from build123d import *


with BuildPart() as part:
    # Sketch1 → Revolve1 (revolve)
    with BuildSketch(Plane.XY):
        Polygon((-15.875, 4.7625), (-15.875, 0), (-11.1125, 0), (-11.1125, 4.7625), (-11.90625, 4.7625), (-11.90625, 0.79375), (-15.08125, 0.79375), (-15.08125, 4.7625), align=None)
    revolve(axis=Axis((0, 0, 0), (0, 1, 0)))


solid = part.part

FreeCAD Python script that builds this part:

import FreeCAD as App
import Part
import Sketcher
Q = App.Units.Quantity

doc = App.newDocument("Part")
body = doc.addObject("PartDesign::Body", "Body")

sketch1 = body.newObject("Sketcher::SketchObject", "Sketch")
sketch1.AttachmentSupport = (doc.getObject("XY_Plane"), [""])
sketch1.MapMode = "FlatFace"
sketch1.addGeometry([
    Part.LineSegment(App.Vector(-15.9, 4.8, 0), App.Vector(-15.9, 0, 0)),
    Part.LineSegment(App.Vector(-15.9, 0, 0), App.Vector(-11.1, 0, 0)),
    Part.LineSegment(App.Vector(-11.1, 0, 0), App.Vector(-11.1, 4.8, 0)),
    Part.LineSegment(App.Vector(-11.1, 4.8, 0), App.Vector(-11.9, 4.8, 0)),
    Part.LineSegment(App.Vector(-11.9, 4.8, 0), App.Vector(-11.9, 0.8, 0)),
    Part.LineSegment(App.Vector(-11.9, 0.8, 0), App.Vector(-15.1, 0.8, 0)),
    Part.LineSegment(App.Vector(-15.1, 0.8, 0), App.Vector(-15.1, 4.8, 0)),
    Part.LineSegment(App.Vector(-15.1, 4.8, 0), App.Vector(-15.9, 4.8, 0)),
], False)
sketch1.addConstraint([
    Sketcher.Constraint("Coincident", 0, 2, 1, 1),
    Sketcher.Constraint("Coincident", 1, 2, 2, 1),
    Sketcher.Constraint("Coincident", 2, 2, 3, 1),
    Sketcher.Constraint("Coincident", 3, 2, 4, 1),
    Sketcher.Constraint("Coincident", 4, 2, 5, 1),
    Sketcher.Constraint("Coincident", 5, 2, 6, 1),
    Sketcher.Constraint("Coincident", 6, 2, 7, 1),
    Sketcher.Constraint("Coincident", 7, 2, 0, 1),
    Sketcher.Constraint("Vertical", 0),
    Sketcher.Constraint("Horizontal", 1),
    Sketcher.Constraint("Vertical", 2),
    Sketcher.Constraint("Horizontal", 3),
    Sketcher.Constraint("Vertical", 4),
    Sketcher.Constraint("Horizontal", 5),
    Sketcher.Constraint("Vertical", 6),
    Sketcher.Constraint("Horizontal", 7),
    Sketcher.Constraint("PointOnObject", 0, 2, -1),
    Sketcher.Constraint("Horizontal", 3, 2, 6, 2),
    Sketcher.Constraint("Equal", 3, 7),
    Sketcher.Constraint("Equal", 1, 0),
    Sketcher.Constraint("DistanceX", 1, 1, 1, 2, Q("0.1875 in")),
    Sketcher.Constraint("DistanceX", 3, 2, 3, 1, Q("0.03125 in")),
    Sketcher.Constraint("DistanceY", 4, 2, 4, 1, Q("0.15625 in")),
    Sketcher.Constraint("DistanceX", 0, 2, -1, 1, Q("0.625 in")),
])
revolution = body.newObject("PartDesign::Revolution", "Revolution")
revolution.Profile = sketch1
revolution.ReferenceAxis = (sketch1, ["V_Axis"])
revolution.Angle = 360

doc.recompute()
